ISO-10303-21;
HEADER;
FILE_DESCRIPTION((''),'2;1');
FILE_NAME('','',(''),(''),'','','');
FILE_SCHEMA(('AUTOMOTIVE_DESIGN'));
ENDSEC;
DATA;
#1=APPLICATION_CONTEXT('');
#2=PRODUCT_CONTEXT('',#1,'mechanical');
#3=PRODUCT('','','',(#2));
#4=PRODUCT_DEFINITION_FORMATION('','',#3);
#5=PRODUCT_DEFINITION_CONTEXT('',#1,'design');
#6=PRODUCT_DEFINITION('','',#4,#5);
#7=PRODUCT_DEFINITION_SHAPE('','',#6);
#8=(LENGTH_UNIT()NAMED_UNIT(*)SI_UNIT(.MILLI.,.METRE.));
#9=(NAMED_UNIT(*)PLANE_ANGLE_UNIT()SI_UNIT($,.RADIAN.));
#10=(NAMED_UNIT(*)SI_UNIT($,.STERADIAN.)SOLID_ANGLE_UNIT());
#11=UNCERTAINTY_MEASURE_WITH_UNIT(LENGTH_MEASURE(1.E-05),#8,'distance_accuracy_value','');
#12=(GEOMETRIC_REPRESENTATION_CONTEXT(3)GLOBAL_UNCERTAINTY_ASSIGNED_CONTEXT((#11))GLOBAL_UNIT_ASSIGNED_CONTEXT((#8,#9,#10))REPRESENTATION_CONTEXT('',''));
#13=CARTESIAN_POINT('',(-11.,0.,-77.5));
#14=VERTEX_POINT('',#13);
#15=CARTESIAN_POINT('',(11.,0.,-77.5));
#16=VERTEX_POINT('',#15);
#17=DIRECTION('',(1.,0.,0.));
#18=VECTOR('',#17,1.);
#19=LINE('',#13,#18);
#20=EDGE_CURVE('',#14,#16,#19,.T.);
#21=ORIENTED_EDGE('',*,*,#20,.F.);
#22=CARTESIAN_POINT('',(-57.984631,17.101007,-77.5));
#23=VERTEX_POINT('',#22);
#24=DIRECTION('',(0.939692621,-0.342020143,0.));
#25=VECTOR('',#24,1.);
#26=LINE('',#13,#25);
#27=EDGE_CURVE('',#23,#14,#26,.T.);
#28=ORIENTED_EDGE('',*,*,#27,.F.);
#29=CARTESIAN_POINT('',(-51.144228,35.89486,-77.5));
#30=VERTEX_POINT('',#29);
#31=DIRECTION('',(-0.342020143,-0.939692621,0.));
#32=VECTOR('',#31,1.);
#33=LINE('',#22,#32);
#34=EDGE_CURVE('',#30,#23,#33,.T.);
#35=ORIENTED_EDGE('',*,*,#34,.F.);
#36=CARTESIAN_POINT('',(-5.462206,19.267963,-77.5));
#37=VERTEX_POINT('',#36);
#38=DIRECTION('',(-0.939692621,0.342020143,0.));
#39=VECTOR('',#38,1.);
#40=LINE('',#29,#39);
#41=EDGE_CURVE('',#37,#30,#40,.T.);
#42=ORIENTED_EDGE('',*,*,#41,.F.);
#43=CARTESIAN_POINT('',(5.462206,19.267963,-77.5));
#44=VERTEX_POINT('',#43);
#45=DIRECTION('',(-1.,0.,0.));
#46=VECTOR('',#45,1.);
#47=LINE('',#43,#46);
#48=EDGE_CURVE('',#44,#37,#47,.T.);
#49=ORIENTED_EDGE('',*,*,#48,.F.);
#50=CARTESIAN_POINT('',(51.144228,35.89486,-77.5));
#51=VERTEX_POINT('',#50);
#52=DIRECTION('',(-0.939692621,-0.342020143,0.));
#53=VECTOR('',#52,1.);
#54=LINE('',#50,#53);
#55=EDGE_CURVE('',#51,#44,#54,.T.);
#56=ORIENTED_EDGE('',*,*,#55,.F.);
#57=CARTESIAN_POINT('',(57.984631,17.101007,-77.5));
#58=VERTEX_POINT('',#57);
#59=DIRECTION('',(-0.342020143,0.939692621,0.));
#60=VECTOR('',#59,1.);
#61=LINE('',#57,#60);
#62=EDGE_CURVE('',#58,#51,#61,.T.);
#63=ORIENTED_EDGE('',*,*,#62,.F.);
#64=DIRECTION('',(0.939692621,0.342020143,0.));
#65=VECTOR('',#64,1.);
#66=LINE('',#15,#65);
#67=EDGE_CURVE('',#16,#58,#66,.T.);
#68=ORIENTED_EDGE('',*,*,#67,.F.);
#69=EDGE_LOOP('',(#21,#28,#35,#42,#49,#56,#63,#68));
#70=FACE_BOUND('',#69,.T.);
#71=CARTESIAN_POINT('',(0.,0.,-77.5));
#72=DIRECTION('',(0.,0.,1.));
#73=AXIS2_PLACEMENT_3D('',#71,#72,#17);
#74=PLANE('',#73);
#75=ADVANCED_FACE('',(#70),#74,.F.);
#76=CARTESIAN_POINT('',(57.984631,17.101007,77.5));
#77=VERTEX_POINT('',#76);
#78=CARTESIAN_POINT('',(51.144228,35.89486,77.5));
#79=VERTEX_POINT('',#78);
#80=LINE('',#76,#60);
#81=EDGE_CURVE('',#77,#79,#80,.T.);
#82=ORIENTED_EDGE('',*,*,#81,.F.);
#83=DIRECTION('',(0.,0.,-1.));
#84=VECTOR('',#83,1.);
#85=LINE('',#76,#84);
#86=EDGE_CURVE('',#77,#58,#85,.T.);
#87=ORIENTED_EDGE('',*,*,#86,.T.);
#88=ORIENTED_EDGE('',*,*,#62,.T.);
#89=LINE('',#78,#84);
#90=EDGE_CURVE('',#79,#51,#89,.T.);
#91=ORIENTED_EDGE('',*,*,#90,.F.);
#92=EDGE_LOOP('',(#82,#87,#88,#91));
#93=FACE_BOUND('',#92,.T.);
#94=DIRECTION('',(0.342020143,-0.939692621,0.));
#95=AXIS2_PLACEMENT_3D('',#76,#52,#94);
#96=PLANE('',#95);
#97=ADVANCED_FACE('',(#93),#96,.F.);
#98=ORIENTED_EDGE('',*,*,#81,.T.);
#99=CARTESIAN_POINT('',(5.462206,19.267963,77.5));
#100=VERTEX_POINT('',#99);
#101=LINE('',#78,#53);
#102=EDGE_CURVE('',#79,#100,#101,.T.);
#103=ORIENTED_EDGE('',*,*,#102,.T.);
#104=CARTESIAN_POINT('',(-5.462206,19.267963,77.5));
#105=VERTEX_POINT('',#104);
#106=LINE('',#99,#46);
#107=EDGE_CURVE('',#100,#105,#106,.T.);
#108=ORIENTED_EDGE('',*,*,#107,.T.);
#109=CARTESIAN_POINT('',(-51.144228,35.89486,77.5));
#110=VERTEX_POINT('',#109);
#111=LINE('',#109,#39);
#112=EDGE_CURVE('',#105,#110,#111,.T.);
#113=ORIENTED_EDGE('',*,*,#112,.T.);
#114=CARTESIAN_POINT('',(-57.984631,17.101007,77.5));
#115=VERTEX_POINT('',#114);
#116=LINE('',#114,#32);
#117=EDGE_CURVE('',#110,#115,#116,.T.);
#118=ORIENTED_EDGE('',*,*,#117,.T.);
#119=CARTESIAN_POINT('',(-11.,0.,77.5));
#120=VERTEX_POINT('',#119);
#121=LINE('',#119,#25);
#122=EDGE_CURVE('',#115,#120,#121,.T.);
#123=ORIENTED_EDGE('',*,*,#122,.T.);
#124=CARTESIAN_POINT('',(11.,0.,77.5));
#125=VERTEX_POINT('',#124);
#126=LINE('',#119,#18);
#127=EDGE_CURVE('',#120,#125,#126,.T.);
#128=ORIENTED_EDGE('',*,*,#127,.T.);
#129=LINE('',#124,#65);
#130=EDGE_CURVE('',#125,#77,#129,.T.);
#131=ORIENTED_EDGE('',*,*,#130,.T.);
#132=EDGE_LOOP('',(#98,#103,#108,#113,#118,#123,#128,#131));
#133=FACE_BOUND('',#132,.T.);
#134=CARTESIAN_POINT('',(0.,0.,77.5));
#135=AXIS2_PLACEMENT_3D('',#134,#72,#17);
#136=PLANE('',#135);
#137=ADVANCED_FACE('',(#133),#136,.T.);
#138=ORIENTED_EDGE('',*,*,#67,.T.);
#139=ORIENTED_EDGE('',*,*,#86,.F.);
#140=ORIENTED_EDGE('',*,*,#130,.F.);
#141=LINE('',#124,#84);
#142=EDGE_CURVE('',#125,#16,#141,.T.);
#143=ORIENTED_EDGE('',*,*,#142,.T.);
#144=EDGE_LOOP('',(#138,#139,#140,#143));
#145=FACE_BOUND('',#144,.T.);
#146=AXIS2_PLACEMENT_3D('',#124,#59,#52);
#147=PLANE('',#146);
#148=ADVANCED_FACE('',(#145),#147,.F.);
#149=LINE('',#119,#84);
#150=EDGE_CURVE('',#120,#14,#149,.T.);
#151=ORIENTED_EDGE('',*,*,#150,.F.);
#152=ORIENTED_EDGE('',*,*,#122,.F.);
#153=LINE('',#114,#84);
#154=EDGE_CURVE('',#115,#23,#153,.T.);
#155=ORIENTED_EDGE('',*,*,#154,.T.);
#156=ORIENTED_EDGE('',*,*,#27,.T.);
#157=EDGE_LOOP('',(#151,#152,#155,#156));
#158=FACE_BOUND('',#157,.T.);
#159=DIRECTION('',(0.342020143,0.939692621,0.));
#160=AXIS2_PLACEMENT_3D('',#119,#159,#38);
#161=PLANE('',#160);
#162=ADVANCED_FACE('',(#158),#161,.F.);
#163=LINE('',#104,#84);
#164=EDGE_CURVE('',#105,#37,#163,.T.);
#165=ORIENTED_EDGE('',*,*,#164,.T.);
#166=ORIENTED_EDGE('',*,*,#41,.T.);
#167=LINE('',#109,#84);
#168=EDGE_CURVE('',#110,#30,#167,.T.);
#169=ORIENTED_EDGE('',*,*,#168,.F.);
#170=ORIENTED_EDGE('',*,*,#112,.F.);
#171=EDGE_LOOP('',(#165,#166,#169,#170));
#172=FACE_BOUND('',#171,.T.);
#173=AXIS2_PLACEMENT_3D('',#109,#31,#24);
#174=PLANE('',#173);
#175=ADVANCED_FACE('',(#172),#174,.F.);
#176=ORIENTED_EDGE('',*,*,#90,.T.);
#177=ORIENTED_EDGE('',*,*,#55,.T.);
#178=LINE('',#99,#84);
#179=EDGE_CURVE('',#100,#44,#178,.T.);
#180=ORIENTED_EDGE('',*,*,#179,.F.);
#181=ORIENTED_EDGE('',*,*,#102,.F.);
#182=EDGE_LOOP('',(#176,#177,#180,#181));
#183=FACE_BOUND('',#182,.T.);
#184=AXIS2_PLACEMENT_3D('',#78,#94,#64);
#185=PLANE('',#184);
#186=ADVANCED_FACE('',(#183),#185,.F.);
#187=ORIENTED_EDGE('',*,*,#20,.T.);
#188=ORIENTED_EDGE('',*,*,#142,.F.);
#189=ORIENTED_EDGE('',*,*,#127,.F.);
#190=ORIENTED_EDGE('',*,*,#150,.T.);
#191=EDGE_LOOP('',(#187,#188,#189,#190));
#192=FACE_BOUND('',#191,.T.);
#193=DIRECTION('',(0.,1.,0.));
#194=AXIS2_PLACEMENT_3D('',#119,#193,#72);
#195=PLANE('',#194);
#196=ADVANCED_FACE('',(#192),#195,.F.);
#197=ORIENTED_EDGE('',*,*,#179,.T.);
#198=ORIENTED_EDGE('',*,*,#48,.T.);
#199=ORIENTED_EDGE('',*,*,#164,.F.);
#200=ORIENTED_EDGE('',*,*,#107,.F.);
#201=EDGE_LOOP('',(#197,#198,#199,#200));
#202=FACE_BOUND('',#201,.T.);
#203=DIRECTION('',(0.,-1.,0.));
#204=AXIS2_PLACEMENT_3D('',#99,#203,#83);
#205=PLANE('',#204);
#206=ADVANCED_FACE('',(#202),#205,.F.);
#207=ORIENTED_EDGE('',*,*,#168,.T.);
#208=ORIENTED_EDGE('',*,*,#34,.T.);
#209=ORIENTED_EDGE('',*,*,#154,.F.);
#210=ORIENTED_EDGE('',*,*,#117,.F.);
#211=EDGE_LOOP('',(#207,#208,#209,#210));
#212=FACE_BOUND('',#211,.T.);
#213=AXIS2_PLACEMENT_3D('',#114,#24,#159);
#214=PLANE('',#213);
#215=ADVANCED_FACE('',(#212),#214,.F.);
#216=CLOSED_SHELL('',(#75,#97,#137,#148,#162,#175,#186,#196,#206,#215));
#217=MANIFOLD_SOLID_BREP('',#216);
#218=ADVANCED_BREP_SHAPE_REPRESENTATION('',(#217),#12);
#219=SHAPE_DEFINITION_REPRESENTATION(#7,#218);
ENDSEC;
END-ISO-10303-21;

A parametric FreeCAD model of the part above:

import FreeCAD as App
import Part
import Sketcher
Q = App.Units.Quantity


def add_polygon(sketch, points):
    """Adds a closed chain of lines whose ends are joined by coincident constraints."""
    first, n = sketch.GeometryCount, len(points)
    for a, b in zip(points, points[1:] + points[:1]):
        sketch.addGeometry(Part.LineSegment(App.Vector(*a, 0), App.Vector(*b, 0)), False)
    for i in range(n):
        sketch.addConstraint(Sketcher.Constraint("Coincident", first + i, 2, first + (i + 1) % n, 1))

doc = App.newDocument("Part")
body = doc.addObject("PartDesign::Body", "Body")

sketch1 = doc.addObject("Sketcher::SketchObject", "Sketch")
body.addObject(sketch1)
sketch1.AttachmentSupport = (doc.XY_Plane, [""])
sketch1.MapMode = "FlatFace"
add_polygon(sketch1, [(-11, 0), (11, 0), (57.984631, 17.101007), (51.144228, 35.89486), (5.462206, 19.267963), (-5.462206, 19.267963), (-51.144228, 35.89486), (-57.984631, 17.101007)])
sketch1.addConstraint([
    Sketcher.Constraint("Horizontal", 0),
    Sketcher.Constraint("Horizontal", 4),
    Sketcher.Constraint("Symmetric", 0, 2, 7, 2, -1, 1),
    Sketcher.Constraint("Symmetric", 2, 2, 5, 2, -2),
    Sketcher.Constraint("Symmetric", 1, 2, 6, 2, -2),
    Sketcher.Constraint("Perpendicular", 1, 2),
    Sketcher.Constraint("Perpendicular", 2, 3),
    Sketcher.Constraint("Perpendicular", 5, 6),
    Sketcher.Constraint("DistanceX", 0, 1, 0, 2, Q("22 mm")),
    Sketcher.Constraint("Angle", 1, Q("20 deg")),
    Sketcher.Constraint("Distance", 1, Q("50 mm")),
    Sketcher.Constraint("Distance", 2, Q("20 mm")),
    Sketcher.Constraint("DistanceX", 4, 2, 4, 1, Q("10.924412 mm")),
])
pad1 = doc.addObject("PartDesign::Pad", "Pad")
body.addObject(pad1)
pad1.Profile = sketch1
pad1.Type = "TwoLengths"
pad1.Length = 77.5
pad1.Length2 = 77.5

doc.recompute()
